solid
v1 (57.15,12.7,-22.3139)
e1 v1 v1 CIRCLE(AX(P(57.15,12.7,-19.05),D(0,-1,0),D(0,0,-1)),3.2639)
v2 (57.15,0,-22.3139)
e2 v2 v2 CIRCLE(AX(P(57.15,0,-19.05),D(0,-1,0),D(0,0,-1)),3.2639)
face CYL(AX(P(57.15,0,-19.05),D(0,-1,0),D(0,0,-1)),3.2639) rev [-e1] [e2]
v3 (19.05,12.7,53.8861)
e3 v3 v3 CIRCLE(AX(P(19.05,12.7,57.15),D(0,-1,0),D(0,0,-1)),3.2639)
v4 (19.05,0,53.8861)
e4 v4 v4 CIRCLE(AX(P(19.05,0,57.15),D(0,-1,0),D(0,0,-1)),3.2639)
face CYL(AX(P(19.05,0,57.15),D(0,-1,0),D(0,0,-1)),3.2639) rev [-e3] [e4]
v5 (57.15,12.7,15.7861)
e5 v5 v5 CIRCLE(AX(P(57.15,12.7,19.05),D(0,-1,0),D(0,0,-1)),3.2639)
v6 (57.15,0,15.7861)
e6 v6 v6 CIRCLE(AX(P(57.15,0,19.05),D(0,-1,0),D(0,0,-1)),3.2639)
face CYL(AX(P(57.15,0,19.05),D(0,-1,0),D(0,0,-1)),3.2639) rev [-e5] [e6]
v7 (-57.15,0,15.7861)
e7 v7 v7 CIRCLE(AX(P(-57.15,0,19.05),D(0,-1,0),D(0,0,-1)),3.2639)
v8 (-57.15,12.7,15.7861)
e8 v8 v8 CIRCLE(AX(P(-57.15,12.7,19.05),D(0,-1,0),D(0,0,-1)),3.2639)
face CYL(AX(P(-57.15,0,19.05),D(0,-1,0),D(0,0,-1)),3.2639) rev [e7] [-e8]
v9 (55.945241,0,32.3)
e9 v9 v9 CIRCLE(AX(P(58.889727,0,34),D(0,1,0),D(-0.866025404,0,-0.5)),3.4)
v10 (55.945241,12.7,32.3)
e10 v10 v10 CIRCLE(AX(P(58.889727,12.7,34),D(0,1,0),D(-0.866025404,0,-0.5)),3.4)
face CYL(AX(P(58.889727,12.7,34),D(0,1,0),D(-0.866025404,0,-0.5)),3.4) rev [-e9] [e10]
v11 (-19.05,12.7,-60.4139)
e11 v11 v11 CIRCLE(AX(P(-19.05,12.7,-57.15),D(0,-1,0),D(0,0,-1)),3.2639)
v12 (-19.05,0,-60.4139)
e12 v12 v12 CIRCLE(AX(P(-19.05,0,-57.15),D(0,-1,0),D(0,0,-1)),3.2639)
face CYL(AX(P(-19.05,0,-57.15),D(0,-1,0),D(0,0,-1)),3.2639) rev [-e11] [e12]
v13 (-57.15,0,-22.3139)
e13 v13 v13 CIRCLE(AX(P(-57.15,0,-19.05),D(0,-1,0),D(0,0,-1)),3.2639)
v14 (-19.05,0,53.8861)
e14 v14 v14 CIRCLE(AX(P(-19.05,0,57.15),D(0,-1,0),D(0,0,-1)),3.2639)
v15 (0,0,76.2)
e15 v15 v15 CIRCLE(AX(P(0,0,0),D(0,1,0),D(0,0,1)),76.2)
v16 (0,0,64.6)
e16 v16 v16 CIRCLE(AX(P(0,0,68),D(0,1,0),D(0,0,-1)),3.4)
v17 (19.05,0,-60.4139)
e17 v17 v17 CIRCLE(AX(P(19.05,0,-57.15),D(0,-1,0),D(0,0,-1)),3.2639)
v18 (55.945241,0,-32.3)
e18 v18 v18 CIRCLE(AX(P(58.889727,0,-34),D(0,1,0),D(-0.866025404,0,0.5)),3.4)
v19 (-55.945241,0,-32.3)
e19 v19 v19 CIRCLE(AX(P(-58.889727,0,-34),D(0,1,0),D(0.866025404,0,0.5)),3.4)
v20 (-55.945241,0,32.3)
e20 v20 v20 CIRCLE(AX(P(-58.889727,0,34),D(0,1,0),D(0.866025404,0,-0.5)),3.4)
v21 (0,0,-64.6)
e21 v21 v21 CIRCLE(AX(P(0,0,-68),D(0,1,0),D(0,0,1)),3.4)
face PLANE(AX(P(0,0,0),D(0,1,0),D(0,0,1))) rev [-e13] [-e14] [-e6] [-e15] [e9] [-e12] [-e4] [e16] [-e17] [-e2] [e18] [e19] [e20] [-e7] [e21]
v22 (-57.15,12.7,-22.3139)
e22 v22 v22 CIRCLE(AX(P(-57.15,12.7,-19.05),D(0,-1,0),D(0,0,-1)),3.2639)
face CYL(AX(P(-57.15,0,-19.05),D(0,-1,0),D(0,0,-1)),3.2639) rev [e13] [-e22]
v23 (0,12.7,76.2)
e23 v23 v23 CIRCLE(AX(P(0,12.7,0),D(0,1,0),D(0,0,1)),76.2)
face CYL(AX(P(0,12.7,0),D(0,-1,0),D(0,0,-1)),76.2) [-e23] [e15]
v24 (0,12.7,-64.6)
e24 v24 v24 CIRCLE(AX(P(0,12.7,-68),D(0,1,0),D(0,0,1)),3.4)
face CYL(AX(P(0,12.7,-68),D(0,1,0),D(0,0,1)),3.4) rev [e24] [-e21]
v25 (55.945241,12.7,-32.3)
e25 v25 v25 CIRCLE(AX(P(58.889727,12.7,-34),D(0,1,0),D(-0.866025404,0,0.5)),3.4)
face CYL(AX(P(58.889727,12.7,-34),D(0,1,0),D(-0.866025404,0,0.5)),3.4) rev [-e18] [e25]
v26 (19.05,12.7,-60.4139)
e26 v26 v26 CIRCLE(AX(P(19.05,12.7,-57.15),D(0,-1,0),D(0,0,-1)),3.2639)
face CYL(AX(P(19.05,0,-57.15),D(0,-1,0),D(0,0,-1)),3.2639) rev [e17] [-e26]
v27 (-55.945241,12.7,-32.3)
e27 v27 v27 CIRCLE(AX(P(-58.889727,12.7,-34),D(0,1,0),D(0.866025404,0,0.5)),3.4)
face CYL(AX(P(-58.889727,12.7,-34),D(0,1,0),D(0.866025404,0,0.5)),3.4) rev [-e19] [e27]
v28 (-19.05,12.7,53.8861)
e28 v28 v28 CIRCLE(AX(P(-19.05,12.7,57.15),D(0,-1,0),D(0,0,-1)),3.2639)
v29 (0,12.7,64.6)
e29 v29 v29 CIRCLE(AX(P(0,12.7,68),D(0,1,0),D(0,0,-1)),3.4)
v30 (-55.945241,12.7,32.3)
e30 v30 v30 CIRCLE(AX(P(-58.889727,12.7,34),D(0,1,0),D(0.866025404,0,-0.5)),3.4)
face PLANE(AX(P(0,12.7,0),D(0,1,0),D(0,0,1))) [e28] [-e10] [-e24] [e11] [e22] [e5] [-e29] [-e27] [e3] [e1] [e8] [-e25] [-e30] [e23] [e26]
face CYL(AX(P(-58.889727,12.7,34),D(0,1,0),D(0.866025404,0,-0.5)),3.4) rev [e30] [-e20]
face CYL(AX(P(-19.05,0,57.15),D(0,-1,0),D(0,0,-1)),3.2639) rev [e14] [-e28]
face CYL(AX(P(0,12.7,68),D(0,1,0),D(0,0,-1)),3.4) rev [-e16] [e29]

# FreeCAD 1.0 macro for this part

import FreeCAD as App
import Part
import Sketcher
from FreeCAD import Vector
Q = App.Units.Quantity

doc = App.newDocument("Part")
body = doc.addObject("PartDesign::Body", "Body")

# Sketch on XZ plane
sketch1 = body.newObject("Sketcher::SketchObject", "Sketch")
sketch1.AttachmentSupport = (doc.getObject("XZ_Plane"), [""])
sketch1.MapMode = "FlatFace"
sketch1.addGeometry(Part.Circle(Vector(0, 0, 0), Vector(0, 0, 1), 76), False)
sketch1.addConstraint(Sketcher.Constraint("Coincident", 0, 3, -1, 1))
sketch1.addConstraint(Sketcher.Constraint("Diameter", 0, Q("6 in")))
pad1 = body.newObject("PartDesign::Pad", "Pad")
pad1.Profile = sketch1
pad1.Length = Q("0.5 in")
pad1.Reversed = True

# Sketch on XZ plane
sketch2 = body.newObject("Sketcher::SketchObject", "Sketch001")
sketch2.AttachmentSupport = (doc.getObject("XZ_Plane"), [""])
sketch2.MapMode = "FlatFace"
sketch2.AttachmentOffset = App.Placement(Vector(0, 0, -0.5 * 25.4), App.Rotation())
sketch2.addGeometry(Part.Circle(Vector(0, -68, 0), Vector(0, 0, 1), 3.4), False)
sketch2.addConstraint(Sketcher.Constraint("PointOnObject", 0, 3, -2))
sketch2.addConstraint(Sketcher.Constraint("Diameter", 0, Q("6.8 mm")))
sketch2.addConstraint(Sketcher.Constraint("DistanceY", 0, 3, -1, 1, Q("68 mm")))
doc.recompute()
hole = body.newObject("PartDesign::Hole", "Hole")
hole.Profile = sketch2
hole.ThreadType = "None"
hole.Diameter = 6.8
hole.DepthType = "ThroughAll"
hole.Reversed = True
doc.recompute()

polarpattern = body.newObject("PartDesign::PolarPattern", "PolarPattern")
polarpattern.Originals = [hole]
polarpattern.Axis = (doc.getObject("Y_Axis"), [""])
polarpattern.Angle = 360
polarpattern.Occurrences = 6
body.Tip = polarpattern

# Sketch on XZ plane
sketch3 = body.newObject("Sketcher::SketchObject", "Sketch002")
sketch3.AttachmentSupport = (doc.getObject("XZ_Plane"), [""])
sketch3.MapMode = "FlatFace"
sketch3.addGeometry(Part.Circle(Vector(19, -57.1, 0), Vector(0, 0, 1), 3.3), False)
sketch3.addGeometry(Part.Circle(Vector(-19, -57.1, 0), Vector(0, 0, 1), 3.3), False)
sketch3.addConstraint(Sketcher.Constraint("Equal", 0, 1))
sketch3.addConstraint(Sketcher.Constraint("Symmetric", 0, 3, 1, 3, -2))
sketch3.addConstraint(Sketcher.Constraint("Diameter", 0, Q("0.257 in")))
sketch3.addConstraint(Sketcher.Constraint("DistanceX", 1, 3, 0, 3, Q("1.5 in")))
sketch3.addConstraint(Sketcher.Constraint("DistanceY", 0, 3, -1, 1, Q("2.25 in")))
doc.recompute()
hole2 = body.newObject("PartDesign::Hole", "Hole001")
hole2.Profile = sketch3
hole2.ThreadType = "None"
hole2.Diameter = Q("0.257 in")
hole2.DepthType = "ThroughAll"
doc.recompute()

polarpattern2 = body.newObject("PartDesign::PolarPattern", "PolarPattern001")
polarpattern2.Originals = [hole2]
polarpattern2.Axis = (doc.getObject("Y_Axis"), [""])
polarpattern2.Angle = 360
polarpattern2.Occurrences = 4
body.Tip = polarpattern2

doc.recompute()
